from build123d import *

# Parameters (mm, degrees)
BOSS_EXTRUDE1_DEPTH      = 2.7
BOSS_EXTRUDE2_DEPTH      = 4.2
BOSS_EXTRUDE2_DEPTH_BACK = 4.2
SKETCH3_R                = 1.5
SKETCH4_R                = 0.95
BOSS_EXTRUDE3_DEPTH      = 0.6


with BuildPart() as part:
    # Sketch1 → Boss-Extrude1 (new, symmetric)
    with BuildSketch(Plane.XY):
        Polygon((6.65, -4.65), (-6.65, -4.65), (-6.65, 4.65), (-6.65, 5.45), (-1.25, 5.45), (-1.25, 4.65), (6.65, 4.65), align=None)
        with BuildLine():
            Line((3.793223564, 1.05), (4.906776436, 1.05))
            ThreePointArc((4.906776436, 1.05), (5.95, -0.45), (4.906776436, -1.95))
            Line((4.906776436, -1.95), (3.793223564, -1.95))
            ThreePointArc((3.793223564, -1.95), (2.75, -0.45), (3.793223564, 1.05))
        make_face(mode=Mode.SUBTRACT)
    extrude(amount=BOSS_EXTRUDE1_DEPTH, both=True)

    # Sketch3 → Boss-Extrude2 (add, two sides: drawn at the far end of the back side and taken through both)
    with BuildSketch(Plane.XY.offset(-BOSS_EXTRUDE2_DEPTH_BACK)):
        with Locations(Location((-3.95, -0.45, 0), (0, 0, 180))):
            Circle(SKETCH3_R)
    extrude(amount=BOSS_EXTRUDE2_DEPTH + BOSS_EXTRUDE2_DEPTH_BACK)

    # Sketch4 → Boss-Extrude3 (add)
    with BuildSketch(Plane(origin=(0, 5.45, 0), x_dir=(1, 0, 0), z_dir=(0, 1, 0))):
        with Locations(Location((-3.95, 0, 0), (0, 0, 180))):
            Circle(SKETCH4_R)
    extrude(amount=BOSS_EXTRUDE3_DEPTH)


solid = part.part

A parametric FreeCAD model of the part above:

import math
import FreeCAD as App
import Part
import Sketcher
from FreeCAD import Vector

doc = App.newDocument("Part")
body = doc.addObject("PartDesign::Body", "Body")

# Sketch on XY plane
sketch1 = doc.addObject("Sketcher::SketchObject", "Sketch")
body.addObject(sketch1)
sketch1.AttachmentSupport = (doc.XY_Plane, [""])
sketch1.MapMode = "FlatFace"
sketch1.addGeometry(Part.LineSegment(Vector(-6.7, -4.7, 0), Vector(6.7, -4.7, 0)), False)
sketch1.addGeometry(Part.LineSegment(Vector(6.7, -4.7, 0), Vector(6.7, 4.7, 0)), False)
sketch1.addGeometry(Part.LineSegment(Vector(6.7, 4.7, 0), Vector(-1.2, 4.7, 0)), False)
sketch1.addGeometry(Part.LineSegment(Vector(-1.2, 4.7, 0), Vector(-1.2, 5.5, 0)), False)
sketch1.addGeometry(Part.LineSegment(Vector(-1.2, 5.5, 0), Vector(-6.7, 5.5, 0)), False)
sketch1.addGeometry(Part.LineSegment(Vector(-6.7, 5.5, 0), Vector(-6.7, -4.7, 0)), False)
sketch1.addGeometry(Part.LineSegment(Vector(3.8, 1.1, 0), Vector(4.9, 1.1, 0)), False)
sketch1.addGeometry(Part.ArcOfCircle(Part.Circle(Vector(4.3, -0.5, 0), Vector(0, 0, 1), 1.6), math.radians(-70), math.radians(70)), False)
sketch1.addGeometry(Part.LineSegment(Vector(4.9, -1.9, 0), Vector(3.8, -1.9, 0)), False)
sketch1.addGeometry(Part.ArcOfCircle(Part.Circle(Vector(4.3, -0.5, 0), Vector(0, 0, 1), 1.6), math.radians(110), math.radians(250)), False)
sketch1.addConstraint(Sketcher.Constraint("Coincident", 0, 2, 1, 1))
sketch1.addConstraint(Sketcher.Constraint("Coincident", 1, 2, 2, 1))
sketch1.addConstraint(Sketcher.Constraint("Coincident", 2, 2, 3, 1))
sketch1.addConstraint(Sketcher.Constraint("Coincident", 3, 2, 4, 1))
sketch1.addConstraint(Sketcher.Constraint("Coincident", 4, 2, 5, 1))
sketch1.addConstraint(Sketcher.Constraint("Coincident", 5, 2, 0, 1))
sketch1.addConstraint(Sketcher.Constraint("Coincident", 6, 2, 7, 2))
sketch1.addConstraint(Sketcher.Constraint("Coincident", 7, 1, 8, 1))
sketch1.addConstraint(Sketcher.Constraint("Coincident", 8, 2, 9, 2))
sketch1.addConstraint(Sketcher.Constraint("Coincident", 9, 1, 6, 1))
sketch1.addConstraint(Sketcher.Constraint("Horizontal", 0))
sketch1.addConstraint(Sketcher.Constraint("Vertical", 1))
sketch1.addConstraint(Sketcher.Constraint("Horizontal", 2))
sketch1.addConstraint(Sketcher.Constraint("Vertical", 3))
sketch1.addConstraint(Sketcher.Constraint("Horizontal", 4))
sketch1.addConstraint(Sketcher.Constraint("Vertical", 5))
sketch1.addConstraint(Sketcher.Constraint("Horizontal", 6))
sketch1.addConstraint(Sketcher.Constraint("Horizontal", 8))
sketch1.addConstraint(Sketcher.Constraint("Coincident", 9, 3, 7, 3))
sketch1.addConstraint(Sketcher.Constraint("Equal", 7, 9))
sketch1.addConstraint(Sketcher.Constraint("Symmetric", 1, 2, 5, 2, -1, 1))
sketch1.addConstraint(Sketcher.Constraint("Vertical", 6, 2, 7, 1))
sketch1.addConstraint(Sketcher.Constraint("Radius", 7, 1.6))
sketch1.addConstraint(Sketcher.Constraint("DistanceX", 0, 1, 0, 2, 13.3))
sketch1.addConstraint(Sketcher.Constraint("DistanceX", 2, 2, 2, 1, 7.9))
sketch1.addConstraint(Sketcher.Constraint("DistanceY", 1, 1, 1, 2, 9.3))
sketch1.addConstraint(Sketcher.Constraint("DistanceY", 3, 1, 3, 2, 0.8))
sketch1.addConstraint(Sketcher.Constraint("DistanceX", 4, 2, 7, 3, 11.0))
sketch1.addConstraint(Sketcher.Constraint("DistanceY", 7, 1, 6, 2, 3.0))
sketch1.addConstraint(Sketcher.Constraint("DistanceY", 0, 2, 7, 3, 4.2))
pad1 = doc.addObject("PartDesign::Pad", "Pad")
body.addObject(pad1)
pad1.Profile = sketch1
pad1.Length = 5.4
pad1.Midplane = True

# Sketch on XY plane
sketch2 = doc.addObject("Sketcher::SketchObject", "Sketch001")
body.addObject(sketch2)
sketch2.AttachmentSupport = (doc.XY_Plane, [""])
sketch2.MapMode = "FlatFace"
sketch2.addGeometry(Part.Circle(Vector(-4, -0.5, 0), Vector(0, 0, 1), 1.5), False)
sketch2.addConstraint(Sketcher.Constraint("Diameter", 0, 3.0))
sketch2.addConstraint(Sketcher.Constraint("DistanceX", 0, 3, -1, 1, 3.95))
sketch2.addConstraint(Sketcher.Constraint("DistanceY", 0, 3, -1, 1, 0.45))
pad2 = doc.addObject("PartDesign::Pad", "Pad001")
body.addObject(pad2)
pad2.Profile = sketch2
pad2.Type = "TwoLengths"
pad2.Length = 4.2
pad2.Length2 = 4.2

# Sketch on XZ plane
sketch3 = doc.addObject("Sketcher::SketchObject", "Sketch002")
body.addObject(sketch3)
sketch3.AttachmentSupport = (doc.XZ_Plane, [""])
sketch3.MapMode = "FlatFace"
sketch3.AttachmentOffset = App.Placement(Vector(0, 0, -5.45), App.Rotation())
sketch3.addGeometry(Part.Circle(Vector(-4, 0, 0), Vector(0, 0, 1), 0.9), False)
sketch3.addConstraint(Sketcher.Constraint("PointOnObject", 0, 3, -1))
sketch3.addConstraint(Sketcher.Constraint("Diameter", 0, 1.9))
sketch3.addConstraint(Sketcher.Constraint("DistanceX", 0, 3, -1, 1, 3.95))
pad3 = doc.addObject("PartDesign::Pad", "Pad002")
body.addObject(pad3)
pad3.Profile = sketch3
pad3.Length = 0.6
pad3.Reversed = True

doc.recompute()
